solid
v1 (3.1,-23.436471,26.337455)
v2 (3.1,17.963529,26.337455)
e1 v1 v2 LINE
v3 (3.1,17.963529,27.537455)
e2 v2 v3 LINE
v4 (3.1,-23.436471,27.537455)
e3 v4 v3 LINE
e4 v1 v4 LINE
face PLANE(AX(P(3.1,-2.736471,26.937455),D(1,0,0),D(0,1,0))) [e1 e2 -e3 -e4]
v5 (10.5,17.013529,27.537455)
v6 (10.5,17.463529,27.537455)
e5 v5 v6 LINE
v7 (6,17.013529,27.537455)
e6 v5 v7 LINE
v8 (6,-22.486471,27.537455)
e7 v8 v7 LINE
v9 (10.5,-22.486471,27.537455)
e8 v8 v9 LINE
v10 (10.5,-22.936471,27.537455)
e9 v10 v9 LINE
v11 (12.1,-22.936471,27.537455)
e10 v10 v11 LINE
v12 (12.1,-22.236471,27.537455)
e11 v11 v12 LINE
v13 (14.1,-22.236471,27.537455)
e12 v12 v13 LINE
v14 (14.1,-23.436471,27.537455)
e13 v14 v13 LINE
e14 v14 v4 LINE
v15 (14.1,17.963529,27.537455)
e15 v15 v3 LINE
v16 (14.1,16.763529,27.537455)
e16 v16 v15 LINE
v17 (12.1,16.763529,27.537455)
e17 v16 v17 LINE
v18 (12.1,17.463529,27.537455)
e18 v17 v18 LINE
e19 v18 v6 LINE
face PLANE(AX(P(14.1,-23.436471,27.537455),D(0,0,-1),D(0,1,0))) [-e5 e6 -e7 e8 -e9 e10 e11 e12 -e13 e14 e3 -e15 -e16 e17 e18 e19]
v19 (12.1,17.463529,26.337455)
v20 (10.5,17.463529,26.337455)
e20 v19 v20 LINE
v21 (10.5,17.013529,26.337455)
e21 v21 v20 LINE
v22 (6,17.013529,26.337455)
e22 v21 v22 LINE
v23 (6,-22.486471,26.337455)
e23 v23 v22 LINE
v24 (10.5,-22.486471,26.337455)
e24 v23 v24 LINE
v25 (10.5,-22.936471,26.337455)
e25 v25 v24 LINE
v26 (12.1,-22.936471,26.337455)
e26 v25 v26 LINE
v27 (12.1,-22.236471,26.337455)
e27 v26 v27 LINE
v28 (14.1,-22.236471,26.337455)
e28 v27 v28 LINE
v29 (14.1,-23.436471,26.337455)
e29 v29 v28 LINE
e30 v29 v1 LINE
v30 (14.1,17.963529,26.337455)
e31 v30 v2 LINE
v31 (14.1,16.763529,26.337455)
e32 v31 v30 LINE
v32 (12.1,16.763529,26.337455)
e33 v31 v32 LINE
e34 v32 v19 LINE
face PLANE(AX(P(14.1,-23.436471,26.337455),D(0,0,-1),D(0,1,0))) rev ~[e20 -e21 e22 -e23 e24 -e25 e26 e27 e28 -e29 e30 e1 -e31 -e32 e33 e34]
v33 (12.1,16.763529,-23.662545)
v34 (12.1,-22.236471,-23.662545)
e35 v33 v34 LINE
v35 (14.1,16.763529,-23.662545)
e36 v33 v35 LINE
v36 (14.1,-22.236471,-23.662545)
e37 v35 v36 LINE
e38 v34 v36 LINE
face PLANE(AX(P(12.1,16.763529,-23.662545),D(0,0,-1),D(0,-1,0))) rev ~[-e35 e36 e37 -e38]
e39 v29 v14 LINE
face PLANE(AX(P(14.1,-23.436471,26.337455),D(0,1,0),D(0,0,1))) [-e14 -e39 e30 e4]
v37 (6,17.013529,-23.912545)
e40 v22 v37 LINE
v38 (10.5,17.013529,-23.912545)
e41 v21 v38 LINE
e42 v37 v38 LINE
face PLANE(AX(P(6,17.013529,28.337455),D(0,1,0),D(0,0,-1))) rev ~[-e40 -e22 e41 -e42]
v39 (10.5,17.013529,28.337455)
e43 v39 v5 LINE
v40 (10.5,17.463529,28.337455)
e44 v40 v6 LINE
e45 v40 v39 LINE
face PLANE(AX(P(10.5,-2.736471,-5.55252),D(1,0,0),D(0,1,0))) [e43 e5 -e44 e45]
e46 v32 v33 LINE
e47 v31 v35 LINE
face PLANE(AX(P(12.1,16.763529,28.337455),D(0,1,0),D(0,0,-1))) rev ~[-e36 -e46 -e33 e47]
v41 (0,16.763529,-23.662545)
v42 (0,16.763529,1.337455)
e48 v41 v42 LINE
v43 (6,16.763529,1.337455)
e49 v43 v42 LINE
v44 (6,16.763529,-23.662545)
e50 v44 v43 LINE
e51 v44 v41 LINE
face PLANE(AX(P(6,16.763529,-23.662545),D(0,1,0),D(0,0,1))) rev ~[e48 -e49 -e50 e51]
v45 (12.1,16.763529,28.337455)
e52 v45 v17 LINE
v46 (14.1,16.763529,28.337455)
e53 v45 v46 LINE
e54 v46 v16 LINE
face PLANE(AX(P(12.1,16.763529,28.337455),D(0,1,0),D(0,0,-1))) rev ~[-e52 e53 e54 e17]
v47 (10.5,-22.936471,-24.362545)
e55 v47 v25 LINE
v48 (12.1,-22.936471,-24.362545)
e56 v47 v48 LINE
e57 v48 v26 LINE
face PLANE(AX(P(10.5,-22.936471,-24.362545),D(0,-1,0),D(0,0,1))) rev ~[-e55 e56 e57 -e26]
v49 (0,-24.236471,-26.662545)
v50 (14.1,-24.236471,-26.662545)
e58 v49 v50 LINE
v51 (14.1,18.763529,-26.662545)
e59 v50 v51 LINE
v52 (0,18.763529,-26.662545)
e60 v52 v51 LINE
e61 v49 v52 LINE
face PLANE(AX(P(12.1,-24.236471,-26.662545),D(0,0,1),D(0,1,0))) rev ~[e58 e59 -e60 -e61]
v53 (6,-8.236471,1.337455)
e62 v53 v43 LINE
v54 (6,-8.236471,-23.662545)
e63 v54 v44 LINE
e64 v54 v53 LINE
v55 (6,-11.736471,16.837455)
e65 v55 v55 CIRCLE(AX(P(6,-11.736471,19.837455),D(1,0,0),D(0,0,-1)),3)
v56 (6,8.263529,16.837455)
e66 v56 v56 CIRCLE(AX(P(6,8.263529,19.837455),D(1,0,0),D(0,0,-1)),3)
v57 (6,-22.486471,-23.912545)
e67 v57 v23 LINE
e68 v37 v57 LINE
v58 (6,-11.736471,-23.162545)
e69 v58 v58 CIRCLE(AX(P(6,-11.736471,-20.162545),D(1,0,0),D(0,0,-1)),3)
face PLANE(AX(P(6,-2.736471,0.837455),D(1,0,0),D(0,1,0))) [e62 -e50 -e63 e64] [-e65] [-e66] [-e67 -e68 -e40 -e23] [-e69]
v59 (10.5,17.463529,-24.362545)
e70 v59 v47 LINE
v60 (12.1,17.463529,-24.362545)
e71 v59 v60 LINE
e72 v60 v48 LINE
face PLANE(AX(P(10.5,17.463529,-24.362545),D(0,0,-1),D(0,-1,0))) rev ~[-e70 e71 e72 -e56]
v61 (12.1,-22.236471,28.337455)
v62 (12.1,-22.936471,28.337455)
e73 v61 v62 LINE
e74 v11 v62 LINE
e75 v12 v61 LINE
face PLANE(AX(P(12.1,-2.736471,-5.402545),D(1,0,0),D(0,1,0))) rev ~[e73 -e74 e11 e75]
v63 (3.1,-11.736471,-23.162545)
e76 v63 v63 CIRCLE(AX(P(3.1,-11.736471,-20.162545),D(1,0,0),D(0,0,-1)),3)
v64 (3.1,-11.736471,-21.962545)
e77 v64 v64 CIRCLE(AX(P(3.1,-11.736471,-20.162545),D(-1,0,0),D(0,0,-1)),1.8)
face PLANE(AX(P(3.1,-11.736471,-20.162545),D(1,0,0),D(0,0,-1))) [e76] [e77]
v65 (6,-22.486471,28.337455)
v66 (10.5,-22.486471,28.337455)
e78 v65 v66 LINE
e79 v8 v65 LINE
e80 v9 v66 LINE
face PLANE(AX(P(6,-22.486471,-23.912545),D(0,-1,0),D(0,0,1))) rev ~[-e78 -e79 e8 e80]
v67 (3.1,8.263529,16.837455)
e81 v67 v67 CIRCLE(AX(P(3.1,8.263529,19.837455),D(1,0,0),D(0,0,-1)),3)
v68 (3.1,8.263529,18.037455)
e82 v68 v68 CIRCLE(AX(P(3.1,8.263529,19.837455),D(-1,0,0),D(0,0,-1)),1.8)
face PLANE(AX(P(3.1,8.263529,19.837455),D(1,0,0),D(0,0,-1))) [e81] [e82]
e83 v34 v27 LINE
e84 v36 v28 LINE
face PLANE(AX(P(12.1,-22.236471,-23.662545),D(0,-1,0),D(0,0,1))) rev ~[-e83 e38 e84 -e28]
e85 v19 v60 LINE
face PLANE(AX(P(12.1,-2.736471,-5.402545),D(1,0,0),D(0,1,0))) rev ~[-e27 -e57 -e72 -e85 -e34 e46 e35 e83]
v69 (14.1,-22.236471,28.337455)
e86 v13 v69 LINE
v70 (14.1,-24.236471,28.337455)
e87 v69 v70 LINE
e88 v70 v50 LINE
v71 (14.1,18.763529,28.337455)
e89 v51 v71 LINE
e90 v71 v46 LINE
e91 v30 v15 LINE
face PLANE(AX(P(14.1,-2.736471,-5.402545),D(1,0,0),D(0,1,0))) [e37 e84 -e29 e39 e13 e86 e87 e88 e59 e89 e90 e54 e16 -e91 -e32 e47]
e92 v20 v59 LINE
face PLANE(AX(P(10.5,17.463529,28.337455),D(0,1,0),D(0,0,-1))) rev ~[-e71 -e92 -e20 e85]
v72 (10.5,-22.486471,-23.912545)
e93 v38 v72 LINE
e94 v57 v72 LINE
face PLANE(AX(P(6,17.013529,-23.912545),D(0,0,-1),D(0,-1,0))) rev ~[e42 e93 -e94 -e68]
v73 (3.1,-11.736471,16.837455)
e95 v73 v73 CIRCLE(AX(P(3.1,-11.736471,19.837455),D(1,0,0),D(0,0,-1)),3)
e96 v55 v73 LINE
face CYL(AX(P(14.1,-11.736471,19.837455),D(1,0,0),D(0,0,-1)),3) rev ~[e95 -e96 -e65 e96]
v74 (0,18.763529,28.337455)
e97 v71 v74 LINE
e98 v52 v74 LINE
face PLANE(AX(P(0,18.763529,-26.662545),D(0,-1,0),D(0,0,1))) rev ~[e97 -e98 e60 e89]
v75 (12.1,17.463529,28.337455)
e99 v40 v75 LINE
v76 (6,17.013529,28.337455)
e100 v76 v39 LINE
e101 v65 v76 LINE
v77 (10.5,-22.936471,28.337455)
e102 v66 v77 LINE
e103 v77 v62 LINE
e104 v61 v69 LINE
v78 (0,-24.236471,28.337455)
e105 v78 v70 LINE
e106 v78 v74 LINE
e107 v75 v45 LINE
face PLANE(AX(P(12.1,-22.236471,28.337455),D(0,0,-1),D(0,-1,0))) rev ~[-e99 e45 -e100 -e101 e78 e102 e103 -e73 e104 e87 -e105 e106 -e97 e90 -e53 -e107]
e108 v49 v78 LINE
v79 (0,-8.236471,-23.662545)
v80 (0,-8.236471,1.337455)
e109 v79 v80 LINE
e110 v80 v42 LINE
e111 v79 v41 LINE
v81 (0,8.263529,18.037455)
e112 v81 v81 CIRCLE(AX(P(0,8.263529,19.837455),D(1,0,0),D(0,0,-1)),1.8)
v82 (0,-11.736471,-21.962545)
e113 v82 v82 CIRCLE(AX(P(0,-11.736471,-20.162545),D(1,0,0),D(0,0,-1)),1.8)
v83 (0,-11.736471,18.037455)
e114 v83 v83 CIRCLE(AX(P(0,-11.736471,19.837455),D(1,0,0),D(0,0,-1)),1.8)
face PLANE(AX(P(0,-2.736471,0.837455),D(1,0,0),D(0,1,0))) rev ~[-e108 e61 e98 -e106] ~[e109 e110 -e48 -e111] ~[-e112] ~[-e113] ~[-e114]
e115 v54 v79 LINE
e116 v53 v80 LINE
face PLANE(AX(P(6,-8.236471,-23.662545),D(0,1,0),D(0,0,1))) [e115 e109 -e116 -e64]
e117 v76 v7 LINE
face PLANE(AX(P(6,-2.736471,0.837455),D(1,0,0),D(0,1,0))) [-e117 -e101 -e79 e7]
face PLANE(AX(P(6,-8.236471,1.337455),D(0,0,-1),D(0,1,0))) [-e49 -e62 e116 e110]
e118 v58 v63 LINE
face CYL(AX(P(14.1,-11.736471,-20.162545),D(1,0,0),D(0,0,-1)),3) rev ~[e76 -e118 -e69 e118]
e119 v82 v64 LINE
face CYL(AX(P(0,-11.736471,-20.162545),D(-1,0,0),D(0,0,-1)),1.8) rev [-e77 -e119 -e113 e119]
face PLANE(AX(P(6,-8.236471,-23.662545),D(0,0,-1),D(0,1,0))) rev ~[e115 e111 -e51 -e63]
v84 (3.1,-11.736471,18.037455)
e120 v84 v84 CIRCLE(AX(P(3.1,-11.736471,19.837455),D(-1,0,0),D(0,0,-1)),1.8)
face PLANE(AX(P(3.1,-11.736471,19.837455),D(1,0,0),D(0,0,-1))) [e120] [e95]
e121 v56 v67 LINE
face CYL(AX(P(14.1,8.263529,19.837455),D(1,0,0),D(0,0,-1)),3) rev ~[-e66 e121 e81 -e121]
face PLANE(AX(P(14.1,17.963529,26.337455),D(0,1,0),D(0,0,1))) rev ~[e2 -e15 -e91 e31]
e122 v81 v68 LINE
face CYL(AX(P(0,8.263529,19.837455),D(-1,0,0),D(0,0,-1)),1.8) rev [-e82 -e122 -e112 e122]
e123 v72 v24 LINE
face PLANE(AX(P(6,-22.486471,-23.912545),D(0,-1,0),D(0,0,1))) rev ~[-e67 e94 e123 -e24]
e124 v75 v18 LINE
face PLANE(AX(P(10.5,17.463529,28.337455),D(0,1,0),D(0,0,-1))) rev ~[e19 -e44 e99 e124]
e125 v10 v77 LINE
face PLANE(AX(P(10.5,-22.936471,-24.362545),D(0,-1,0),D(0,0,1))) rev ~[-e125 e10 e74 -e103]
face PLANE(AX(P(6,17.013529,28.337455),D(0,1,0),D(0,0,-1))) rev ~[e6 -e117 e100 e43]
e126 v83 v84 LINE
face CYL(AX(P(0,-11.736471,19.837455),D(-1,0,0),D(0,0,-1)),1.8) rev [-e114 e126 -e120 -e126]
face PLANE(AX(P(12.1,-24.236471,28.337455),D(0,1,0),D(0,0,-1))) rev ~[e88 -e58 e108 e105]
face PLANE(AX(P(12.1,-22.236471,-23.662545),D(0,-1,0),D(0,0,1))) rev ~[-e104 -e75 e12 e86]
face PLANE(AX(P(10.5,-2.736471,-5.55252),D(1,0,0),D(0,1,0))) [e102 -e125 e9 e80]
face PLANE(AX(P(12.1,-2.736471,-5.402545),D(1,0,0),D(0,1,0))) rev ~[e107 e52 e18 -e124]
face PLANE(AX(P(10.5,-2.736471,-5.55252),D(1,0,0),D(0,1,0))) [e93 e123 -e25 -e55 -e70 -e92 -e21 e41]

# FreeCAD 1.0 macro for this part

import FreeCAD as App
import Part
import Sketcher
Q = App.Units.Quantity


def add_polygon(sketch, points):
    """Adds a closed chain of lines whose ends are joined by coincident constraints."""
    first, n = sketch.GeometryCount, len(points)
    for a, b in zip(points, points[1:] + points[:1]):
        sketch.addGeometry(Part.LineSegment(App.Vector(*a, 0), App.Vector(*b, 0)), False)
    for i in range(n):
        sketch.addConstraint(Sketcher.Constraint("Coincident", first + i, 2, first + (i + 1) % n, 1))

doc = App.newDocument("Part")
body = doc.addObject("PartDesign::Body", "Body")

sketch1 = body.newObject("Sketcher::SketchObject", "Sketch")
sketch1.AttachmentSupport = (doc.getObject("YZ_Plane"), [""])
sketch1.MapMode = "FlatFace"
add_polygon(sketch1, [(-24.2, 28.3), (-24.2, -26.7), (18.8, -26.7), (18.8, 28.3)])
sketch1.addGeometry(Part.Circle(App.Vector(-11.7, -20.2, 0), App.Vector(0, 0, 1), 1.8), False)
sketch1.addGeometry(Part.Circle(App.Vector(-11.7, 19.8, 0), App.Vector(0, 0, 1), 1.8), False)
sketch1.addGeometry(Part.Circle(App.Vector(8.3, 19.8, 0), App.Vector(0, 0, 1), 1.8), False)
sketch1.addConstraint([
    Sketcher.Constraint("Vertical", 0),
    Sketcher.Constraint("Horizontal", 1),
    Sketcher.Constraint("Vertical", 2),
    Sketcher.Constraint("Horizontal", 3),
    Sketcher.Constraint("Equal", 4, 5),
    Sketcher.Constraint("Equal", 5, 6),
    Sketcher.Constraint("Horizontal", 5, 3, 6, 3),
    Sketcher.Constraint("Vertical", 4, 3, 5, 3),
    Sketcher.Constraint("Diameter", 4, Q("3.6 mm")),
    Sketcher.Constraint("DistanceX", 1, 1, 1, 2, Q("43 mm")),
    Sketcher.Constraint("DistanceY", 0, 2, 0, 1, Q("55 mm")),
    Sketcher.Constraint("DistanceY", 4, 3, 5, 3, Q("40 mm")),
    Sketcher.Constraint("DistanceX", 5, 3, 6, 3, Q("20 mm")),
    Sketcher.Constraint("DistanceX", 0, 2, 4, 3, Q("12.5 mm")),
    Sketcher.Constraint("DistanceY", 0, 2, 4, 3, Q("6.5 mm")),
    Sketcher.Constraint("DistanceX", 4, 3, -1, 1, Q("11.736471 mm")),
    Sketcher.Constraint("DistanceY", 4, 3, -1, 1, Q("20.162545 mm")),
])
pad1 = body.newObject("PartDesign::Pad", "Pad")
pad1.Profile = sketch1
pad1.Length = 6

sketch2 = body.newObject("Sketcher::SketchObject", "Sketch001")
sketch2.AttachmentSupport = (doc.getObject("YZ_Plane"), [""])
sketch2.MapMode = "FlatFace"
sketch2.AttachmentOffset = App.Placement(App.Vector(0, 0, 6), App.Rotation())
add_polygon(sketch2, [(-22.5, 28.3), (-24.2, 28.3), (-24.2, -26.7), (18.8, -26.7), (18.8, 28.3), (17, 28.3), (17, -23.9), (-22.5, -23.9)])
sketch2.addConstraint([
    Sketcher.Constraint("Horizontal", 0),
    Sketcher.Constraint("Vertical", 1),
    Sketcher.Constraint("Horizontal", 2),
    Sketcher.Constraint("Vertical", 3),
    Sketcher.Constraint("Horizontal", 4),
    Sketcher.Constraint("Vertical", 5),
    Sketcher.Constraint("Horizontal", 6),
    Sketcher.Constraint("Vertical", 7),
    Sketcher.Constraint("Horizontal", 0, 2, 3, 2),
    Sketcher.Constraint("Equal", 0, 4),
    Sketcher.Constraint("DistanceX", 2, 1, 2, 2, Q("43 mm")),
    Sketcher.Constraint("DistanceY", 1, 2, 1, 1, Q("55 mm")),
    Sketcher.Constraint("DistanceX", 6, 2, 6, 1, Q("39.5 mm")),
    Sketcher.Constraint("DistanceY", 5, 2, 5, 1, Q("52.25 mm")),
    Sketcher.Constraint("DistanceX", 0, 2, -1, 1, Q("24.236471 mm")),
    Sketcher.Constraint("DistanceY", -1, 1, 0, 2, Q("28.337455 mm")),
])
pad2 = body.newObject("PartDesign::Pad", "Pad001")
pad2.Profile = sketch2
pad2.Length = 4.5

sketch3 = body.newObject("Sketcher::SketchObject", "Sketch002")
sketch3.AttachmentSupport = (doc.getObject("YZ_Plane"), [""])
sketch3.MapMode = "FlatFace"
sketch3.AttachmentOffset = App.Placement(App.Vector(0, 0, 10.5), App.Rotation())
add_polygon(sketch3, [(-22.9, 28.3), (-24.2, 28.3), (-24.2, -26.7), (18.8, -26.7), (18.8, 28.3), (17.5, 28.3), (17.5, -24.4), (-22.9, -24.4)])
sketch3.addConstraint([
    Sketcher.Constraint("Horizontal", 0),
    Sketcher.Constraint("Vertical", 1),
    Sketcher.Constraint("Horizontal", 2),
    Sketcher.Constraint("Vertical", 3),
    Sketcher.Constraint("Horizontal", 4),
    Sketcher.Constraint("Vertical", 5),
    Sketcher.Constraint("Horizontal", 6),
    Sketcher.Constraint("Vertical", 7),
    Sketcher.Constraint("Horizontal", 0, 2, 3, 2),
    Sketcher.Constraint("Equal", 0, 4),
    Sketcher.Constraint("DistanceX", 2, 1, 2, 2, Q("43 mm")),
    Sketcher.Constraint("DistanceY", 1, 2, 1, 1, Q("55 mm")),
    Sketcher.Constraint("DistanceX", 0, 2, 0, 1, Q("1.3 mm")),
    Sketcher.Constraint("DistanceY", 5, 2, 5, 1, Q("52.7 mm")),
    Sketcher.Constraint("DistanceX", 0, 2, -1, 1, Q("24.236471 mm")),
    Sketcher.Constraint("DistanceY", -1, 1, 0, 2, Q("28.337455 mm")),
])
pad3 = body.newObject("PartDesign::Pad", "Pad002")
pad3.Profile = sketch3
pad3.Length = 1.6

sketch4 = body.newObject("Sketcher::SketchObject", "Sketch003")
sketch4.AttachmentSupport = (doc.getObject("YZ_Plane"), [""])
sketch4.MapMode = "FlatFace"
sketch4.AttachmentOffset = App.Placement(App.Vector(0, 0, 12.1), App.Rotation())
add_polygon(sketch4, [(-22.2, 28.3), (-24.2, 28.3), (-24.2, -26.7), (18.8, -26.7), (18.8, 28.3), (16.8, 28.3), (16.8, -23.7), (-22.2, -23.7)])
sketch4.addConstraint([
    Sketcher.Constraint("Horizontal", 0),
    Sketcher.Constraint("Vertical", 1),
    Sketcher.Constraint("Horizontal", 2),
    Sketcher.Constraint("Vertical", 3),
    Sketcher.Constraint("Horizontal", 4),
    Sketcher.Constraint("Vertical", 5),
    Sketcher.Constraint("Horizontal", 6),
    Sketcher.Constraint("Vertical", 7),
    Sketcher.Constraint("Horizontal", 0, 2, 3, 2),
    Sketcher.Constraint("Equal", 0, 4),
    Sketcher.Constraint("DistanceX", 0, 2, 0, 1, Q("2 mm")),
    Sketcher.Constraint("DistanceX", 2, 1, 2, 2, Q("43 mm")),
    Sketcher.Constraint("DistanceY", 1, 2, 1, 1, Q("55 mm")),
    Sketcher.Constraint("DistanceY", 5, 2, 5, 1, Q("52 mm")),
    Sketcher.Constraint("DistanceX", 0, 2, -1, 1, Q("24.236471 mm")),
    Sketcher.Constraint("DistanceY", -1, 1, 0, 2, Q("28.337455 mm")),
])
pad4 = body.newObject("PartDesign::Pad", "Pad003")
pad4.Profile = sketch4
pad4.Length = 2

sketch5 = body.newObject("Sketcher::SketchObject", "Sketch004")
sketch5.AttachmentSupport = (doc.getObject("YZ_Plane"), [""])
sketch5.MapMode = "FlatFace"
sketch5.AttachmentOffset = App.Placement(App.Vector(0, 0, 14.1), App.Rotation())
sketch5.addGeometry([
    Part.Circle(App.Vector(-11.7, -20.2, 0), App.Vector(0, 0, 1), 3),
    Part.Circle(App.Vector(-11.7, 19.8, 0), App.Vector(0, 0, 1), 3),
    Part.Circle(App.Vector(8.3, 19.8, 0), App.Vector(0, 0, 1), 3),
], False)
sketch5.addConstraint([
    Sketcher.Constraint("Equal", 0, 1),
    Sketcher.Constraint("Equal", 1, 2),
    Sketcher.Constraint("Horizontal", 1, 3, 2, 3),
    Sketcher.Constraint("Vertical", 0, 3, 1, 3),
    Sketcher.Constraint("Diameter", 0, Q("6 mm")),
    Sketcher.Constraint("DistanceY", 0, 3, 1, 3, Q("40 mm")),
    Sketcher.Constraint("DistanceX", 1, 3, 2, 3, Q("20 mm")),
    Sketcher.Constraint("DistanceX", 0, 3, -1, 1, Q("11.736471 mm")),
    Sketcher.Constraint("DistanceY", 0, 3, -1, 1, Q("20.162545 mm")),
])
pocket1 = body.newObject("PartDesign::Pocket", "Pocket")
pocket1.Profile = sketch5
pocket1.Length = 11

sketch6 = body.newObject("Sketcher::SketchObject", "Sketch005")
sketch6.AttachmentSupport = (doc.getObject("YZ_Plane"), [""])
sketch6.MapMode = "FlatFace"
sketch6.AttachmentOffset = App.Placement(App.Vector(0, 0, 6), App.Rotation())
add_polygon(sketch6, [(-8, 1), (-8, -24), (17, -24), (17, 1)])
sketch6.addConstraint([
    Sketcher.Constraint("Vertical", 0),
    Sketcher.Constraint("Horizontal", 1),
    Sketcher.Constraint("Vertical", 2),
    Sketcher.Constraint("Horizontal", 3),
    Sketcher.Constraint("Equal", 3, 0),
    Sketcher.Constraint("DistanceX", 1, 1, 1, 2, Q("25 mm")),
    Sketcher.Constraint("DistanceX", 0, 2, -1, 1, Q("8.236471 mm")),
    Sketcher.Constraint("DistanceY", 0, 2, -1, 1, Q("23.662545 mm")),
])
pocket2 = body.newObject("PartDesign::Pocket", "Pocket001")
pocket2.Profile = sketch6
pocket2.Length = 11.5

sketch7 = body.newObject("Sketcher::SketchObject", "Sketch006")
sketch7.AttachmentSupport = (doc.getObject("YZ_Plane"), [""])
sketch7.MapMode = "FlatFace"
sketch7.AttachmentOffset = App.Placement(App.Vector(0, 0, 14.1), App.Rotation())
add_polygon(sketch7, [(-23.4, 27.5), (-23.4, 26.3), (18, 26.3), (18, 27.5)])
sketch7.addConstraint([
    Sketcher.Constraint("Vertical", 0),
    Sketcher.Constraint("Horizontal", 1),
    Sketcher.Constraint("Vertical", 2),
    Sketcher.Constraint("Horizontal", 3),
    Sketcher.Constraint("DistanceX", 1, 1, 1, 2, Q("41.4 mm")),
    Sketcher.Constraint("DistanceY", 0, 2, 0, 1, Q("1.2 mm")),
    Sketcher.Constraint("DistanceX", 0, 2, -1, 1, Q("23.436471 mm")),
    Sketcher.Constraint("DistanceY", -1, 1, 0, 2, Q("26.337455 mm")),
])
pocket3 = body.newObject("PartDesign::Pocket", "Pocket002")
pocket3.Profile = sketch7
pocket3.Length = 11

doc.recompute()
